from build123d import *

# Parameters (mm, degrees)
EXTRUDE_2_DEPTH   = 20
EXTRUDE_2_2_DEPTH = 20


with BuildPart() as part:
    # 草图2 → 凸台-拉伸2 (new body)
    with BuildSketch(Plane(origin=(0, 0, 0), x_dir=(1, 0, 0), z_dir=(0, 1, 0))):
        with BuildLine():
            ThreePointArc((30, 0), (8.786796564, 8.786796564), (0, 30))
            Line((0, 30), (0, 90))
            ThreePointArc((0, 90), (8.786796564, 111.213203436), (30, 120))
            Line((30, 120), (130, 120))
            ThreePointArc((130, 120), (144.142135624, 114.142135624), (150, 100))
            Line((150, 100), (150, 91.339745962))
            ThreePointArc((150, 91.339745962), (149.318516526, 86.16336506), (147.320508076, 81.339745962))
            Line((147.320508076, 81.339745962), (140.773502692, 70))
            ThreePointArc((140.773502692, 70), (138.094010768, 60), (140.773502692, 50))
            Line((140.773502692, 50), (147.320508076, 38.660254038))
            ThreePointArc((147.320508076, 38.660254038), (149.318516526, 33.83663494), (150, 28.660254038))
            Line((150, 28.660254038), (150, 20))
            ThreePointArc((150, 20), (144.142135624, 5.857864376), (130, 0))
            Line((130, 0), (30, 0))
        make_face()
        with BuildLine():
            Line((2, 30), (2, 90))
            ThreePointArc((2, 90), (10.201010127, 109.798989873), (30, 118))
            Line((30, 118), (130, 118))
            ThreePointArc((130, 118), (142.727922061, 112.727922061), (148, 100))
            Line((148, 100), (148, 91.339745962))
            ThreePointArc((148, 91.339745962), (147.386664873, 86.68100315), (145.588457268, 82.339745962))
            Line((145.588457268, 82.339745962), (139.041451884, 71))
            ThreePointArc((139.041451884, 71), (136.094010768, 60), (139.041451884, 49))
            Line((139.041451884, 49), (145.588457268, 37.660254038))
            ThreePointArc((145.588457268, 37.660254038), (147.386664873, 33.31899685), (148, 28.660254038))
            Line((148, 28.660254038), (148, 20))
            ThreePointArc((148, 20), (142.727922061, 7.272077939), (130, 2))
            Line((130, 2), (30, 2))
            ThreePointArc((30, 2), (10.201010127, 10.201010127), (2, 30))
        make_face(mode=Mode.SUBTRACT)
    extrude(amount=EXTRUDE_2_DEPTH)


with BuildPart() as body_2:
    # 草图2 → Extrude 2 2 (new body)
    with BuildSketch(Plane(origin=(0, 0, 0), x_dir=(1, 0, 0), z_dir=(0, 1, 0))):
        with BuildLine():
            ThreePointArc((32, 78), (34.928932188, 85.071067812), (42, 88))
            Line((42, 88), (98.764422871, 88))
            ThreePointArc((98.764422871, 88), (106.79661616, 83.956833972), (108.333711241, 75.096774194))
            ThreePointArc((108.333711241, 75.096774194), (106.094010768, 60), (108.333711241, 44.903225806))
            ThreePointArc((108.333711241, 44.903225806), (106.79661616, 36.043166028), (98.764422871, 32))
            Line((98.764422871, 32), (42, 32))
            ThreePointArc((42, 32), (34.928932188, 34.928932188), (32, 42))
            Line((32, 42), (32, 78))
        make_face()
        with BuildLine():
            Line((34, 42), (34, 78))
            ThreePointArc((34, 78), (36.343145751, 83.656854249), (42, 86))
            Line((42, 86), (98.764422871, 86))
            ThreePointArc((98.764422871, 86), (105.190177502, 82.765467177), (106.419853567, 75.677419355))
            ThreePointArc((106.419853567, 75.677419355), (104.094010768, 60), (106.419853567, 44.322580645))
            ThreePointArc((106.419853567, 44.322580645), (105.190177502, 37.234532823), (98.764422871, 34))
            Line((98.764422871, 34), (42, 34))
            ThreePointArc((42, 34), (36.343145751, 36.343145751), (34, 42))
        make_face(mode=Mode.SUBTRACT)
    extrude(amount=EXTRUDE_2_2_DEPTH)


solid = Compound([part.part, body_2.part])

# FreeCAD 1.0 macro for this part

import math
import FreeCAD as App
import Part
import Sketcher
Q = App.Units.Quantity

doc = App.newDocument("Part")
body = doc.addObject("PartDesign::Body", "Body")

sketch1 = body.newObject("Sketcher::SketchObject", "Sketch")
sketch1.AttachmentSupport = (doc.getObject("XZ_Plane"), [""])
sketch1.MapMode = "FlatFace"
sketch1.addGeometry(Part.ArcOfCircle(Part.Circle(App.Vector(30, -30, 0), App.Vector(0, 0, 1), 30), math.radians(90), math.radians(180)), False)
sketch1.addGeometry(Part.LineSegment(App.Vector(30, 0, 0), App.Vector(130, 0, 0)), False)
sketch1.addGeometry(Part.ArcOfCircle(Part.Circle(App.Vector(130, -20, 0), App.Vector(0, 0, 1), 20), math.radians(0), math.radians(90)), False)
sketch1.addGeometry(Part.LineSegment(App.Vector(150, -20, 0), App.Vector(150, -29, 0)), False)
sketch1.addGeometry(Part.ArcOfCircle(Part.Circle(App.Vector(130, -29, 0), App.Vector(0, 0, 1), 20), math.radians(-30), math.radians(0)), False)
sketch1.addGeometry(Part.LineSegment(App.Vector(147, -39, 0), App.Vector(141, -50, 0)), False)
sketch1.addGeometry(Part.ArcOfCircle(Part.Circle(App.Vector(158, -60, 0), App.Vector(0, 0, 1), 20), math.radians(150), math.radians(210)), False)
sketch1.addGeometry(Part.LineSegment(App.Vector(141, -70, 0), App.Vector(147, -81, 0)), False)
sketch1.addGeometry(Part.ArcOfCircle(Part.Circle(App.Vector(130, -91, 0), App.Vector(0, 0, 1), 20), math.radians(0), math.radians(30)), False)
sketch1.addGeometry(Part.LineSegment(App.Vector(150, -91, 0), App.Vector(150, -100, 0)), False)
sketch1.addGeometry(Part.ArcOfCircle(Part.Circle(App.Vector(130, -100, 0), App.Vector(0, 0, 1), 20), math.radians(-90), math.radians(0)), False)
sketch1.addGeometry(Part.LineSegment(App.Vector(130, -120, 0), App.Vector(30, -120, 0)), False)
sketch1.addGeometry(Part.ArcOfCircle(Part.Circle(App.Vector(30, -90, 0), App.Vector(0, 0, 1), 30), math.radians(180), math.radians(270)), False)
sketch1.addGeometry(Part.LineSegment(App.Vector(0, -90, 0), App.Vector(0, -30, 0)), False)
sketch1.addGeometry(Part.LineSegment(App.Vector(2, -30, 0), App.Vector(2, -90, 0)), False)
sketch1.addGeometry(Part.ArcOfCircle(Part.Circle(App.Vector(30, -90, 0), App.Vector(0, 0, 1), 28), math.radians(-180), math.radians(-90)), False)
sketch1.addGeometry(Part.LineSegment(App.Vector(30, -118, 0), App.Vector(130, -118, 0)), False)
sketch1.addGeometry(Part.ArcOfCircle(Part.Circle(App.Vector(130, -100, 0), App.Vector(0, 0, 1), 18), math.radians(-90), math.radians(0)), False)
sketch1.addGeometry(Part.LineSegment(App.Vector(148, -100, 0), App.Vector(148, -91, 0)), False)
sketch1.addGeometry(Part.ArcOfCircle(Part.Circle(App.Vector(130, -91, 0), App.Vector(0, 0, 1), 18), math.radians(0), math.radians(30)), False)
sketch1.addGeometry(Part.LineSegment(App.Vector(146, -82, 0), App.Vector(139, -71, 0)), False)
sketch1.addGeometry(Part.ArcOfCircle(Part.Circle(App.Vector(158, -60, 0), App.Vector(0, 0, 1), 22), math.radians(150), math.radians(210)), False)
sketch1.addGeometry(Part.LineSegment(App.Vector(139, -49, 0), App.Vector(146, -38, 0)), False)
sketch1.addGeometry(Part.ArcOfCircle(Part.Circle(App.Vector(130, -29, 0), App.Vector(0, 0, 1), 18), math.radians(-30), math.radians(0)), False)
sketch1.addGeometry(Part.LineSegment(App.Vector(148, -29, 0), App.Vector(148, -20, 0)), False)
sketch1.addGeometry(Part.ArcOfCircle(Part.Circle(App.Vector(130, -20, 0), App.Vector(0, 0, 1), 18), math.radians(0), math.radians(90)), False)
sketch1.addGeometry(Part.LineSegment(App.Vector(130, -2, 0), App.Vector(30, -2, 0)), False)
sketch1.addGeometry(Part.ArcOfCircle(Part.Circle(App.Vector(30, -30, 0), App.Vector(0, 0, 1), 28), math.radians(90), math.radians(180)), False)
sketch1.addConstraint(Sketcher.Constraint("Tangent", 0, 1, 1, 1))
sketch1.addConstraint(Sketcher.Constraint("Tangent", 1, 2, 2, 2))
sketch1.addConstraint(Sketcher.Constraint("Tangent", 2, 1, 3, 1))
sketch1.addConstraint(Sketcher.Constraint("Tangent", 3, 2, 4, 2))
sketch1.addConstraint(Sketcher.Constraint("Tangent", 4, 1, 5, 1))
sketch1.addConstraint(Sketcher.Constraint("Tangent", 5, 2, 6, 1))
sketch1.addConstraint(Sketcher.Constraint("Tangent", 6, 2, 7, 1))
sketch1.addConstraint(Sketcher.Constraint("Tangent", 7, 2, 8, 2))
sketch1.addConstraint(Sketcher.Constraint("Tangent", 8, 1, 9, 1))
sketch1.addConstraint(Sketcher.Constraint("Tangent", 9, 2, 10, 2))
sketch1.addConstraint(Sketcher.Constraint("Tangent", 10, 1, 11, 1))
sketch1.addConstraint(Sketcher.Constraint("Tangent", 11, 2, 12, 2))
sketch1.addConstraint(Sketcher.Constraint("Tangent", 12, 1, 13, 1))
sketch1.addConstraint(Sketcher.Constraint("Tangent", 13, 2, 0, 2))
sketch1.addConstraint(Sketcher.Constraint("Tangent", 14, 2, 15, 1))
sketch1.addConstraint(Sketcher.Constraint("Tangent", 15, 2, 16, 1))
sketch1.addConstraint(Sketcher.Constraint("Tangent", 16, 2, 17, 1))
sketch1.addConstraint(Sketcher.Constraint("Tangent", 17, 2, 18, 1))
sketch1.addConstraint(Sketcher.Constraint("Tangent", 18, 2, 19, 1))
sketch1.addConstraint(Sketcher.Constraint("Tangent", 19, 2, 20, 1))
sketch1.addConstraint(Sketcher.Constraint("Tangent", 20, 2, 21, 2))
sketch1.addConstraint(Sketcher.Constraint("Tangent", 21, 1, 22, 1))
sketch1.addConstraint(Sketcher.Constraint("Tangent", 22, 2, 23, 1))
sketch1.addConstraint(Sketcher.Constraint("Tangent", 23, 2, 24, 1))
sketch1.addConstraint(Sketcher.Constraint("Tangent", 24, 2, 25, 1))
sketch1.addConstraint(Sketcher.Constraint("Tangent", 25, 2, 26, 1))
sketch1.addConstraint(Sketcher.Constraint("Tangent", 26, 2, 27, 1))
sketch1.addConstraint(Sketcher.Constraint("Tangent", 27, 2, 14, 1))
sketch1.addConstraint(Sketcher.Constraint("Horizontal", 1))
sketch1.addConstraint(Sketcher.Constraint("Vertical", 3))
sketch1.addConstraint(Sketcher.Constraint("Vertical", 9))
sketch1.addConstraint(Sketcher.Constraint("Horizontal", 11))
sketch1.addConstraint(Sketcher.Constraint("Vertical", 13))
sketch1.addConstraint(Sketcher.Constraint("Vertical", 14))
sketch1.addConstraint(Sketcher.Constraint("Horizontal", 16))
sketch1.addConstraint(Sketcher.Constraint("Vertical", 18))
sketch1.addConstraint(Sketcher.Constraint("Vertical", 24))
sketch1.addConstraint(Sketcher.Constraint("Horizontal", 26))
sketch1.addConstraint(Sketcher.Constraint("Coincident", 15, 3, 12, 3))
sketch1.addConstraint(Sketcher.Constraint("Coincident", 17, 3, 10, 3))
sketch1.addConstraint(Sketcher.Constraint("Coincident", 19, 3, 8, 3))
sketch1.addConstraint(Sketcher.Constraint("Coincident", 21, 3, 6, 3))
sketch1.addConstraint(Sketcher.Constraint("Coincident", 23, 3, 4, 3))
sketch1.addConstraint(Sketcher.Constraint("Coincident", 25, 3, 2, 3))
sketch1.addConstraint(Sketcher.Constraint("Coincident", 27, 3, 0, 3))
sketch1.addConstraint(Sketcher.Constraint("Equal", 2, 4))
sketch1.addConstraint(Sketcher.Constraint("Equal", 4, 6))
sketch1.addConstraint(Sketcher.Constraint("Equal", 6, 8))
sketch1.addConstraint(Sketcher.Constraint("Equal", 8, 10))
sketch1.addConstraint(Sketcher.Constraint("Equal", 0, 12))
sketch1.addConstraint(Sketcher.Constraint("PointOnObject", 0, 1, -1))
sketch1.addConstraint(Sketcher.Constraint("PointOnObject", 12, 1, -2))
sketch1.addConstraint(Sketcher.Constraint("Parallel", 7, 20))
sketch1.addConstraint(Sketcher.Constraint("Vertical", 4, 3, 8, 3))
sketch1.addConstraint(Sketcher.Constraint("Vertical", 5, 2, 6, 2))
sketch1.addConstraint(Sketcher.Constraint("Equal", 3, 9))
sketch1.addConstraint(Sketcher.Constraint("Radius", 0, Q("30 mm")))
sketch1.addConstraint(Sketcher.Constraint("Radius", 2, Q("20 mm")))
sketch1.addConstraint(Sketcher.Constraint("Radius", 15, Q("28 mm")))
sketch1.addConstraint(Sketcher.Constraint("DistanceX", 1, 1, 1, 2, Q("100 mm")))
sketch1.addConstraint(Sketcher.Constraint("DistanceY", 13, 1, 13, 2, Q("60 mm")))
sketch1.addConstraint(Sketcher.Constraint("Angle", 5, Q("-120 deg")))
sketch1.addConstraint(Sketcher.Constraint("Distance", 5, Q("13.094011 mm")))
pad1 = body.newObject("PartDesign::Pad", "Pad")
pad1.Profile = sketch1
pad1.Length = 20
pad1.Reversed = True
body2 = doc.addObject("PartDesign::Body", "Body001")

sketch2 = body2.newObject("Sketcher::SketchObject", "Sketch001")
sketch2.AttachmentSupport = (doc.getObject("XZ_Plane001"), [""])
sketch2.MapMode = "FlatFace"
sketch2.addGeometry(Part.ArcOfCircle(Part.Circle(App.Vector(42, -78, 0), App.Vector(0, 0, 1), 10), math.radians(180), math.radians(270)), False)
sketch2.addGeometry(Part.LineSegment(App.Vector(32, -78, 0), App.Vector(32, -42, 0)), False)
sketch2.addGeometry(Part.ArcOfCircle(Part.Circle(App.Vector(42, -42, 0), App.Vector(0, 0, 1), 10), math.radians(90), math.radians(180)), False)
sketch2.addGeometry(Part.LineSegment(App.Vector(42, -32, 0), App.Vector(99, -32, 0)), False)
sketch2.addGeometry(Part.ArcOfCircle(Part.Circle(App.Vector(99, -42, 0), App.Vector(0, 0, 1), 10), math.radians(-17), math.radians(90)), False)
sketch2.addGeometry(Part.ArcOfCircle(Part.Circle(App.Vector(158, -60, 0), App.Vector(0, 0, 1), 52), math.radians(163), math.radians(197)), False)
sketch2.addGeometry(Part.ArcOfCircle(Part.Circle(App.Vector(99, -78, 0), App.Vector(0, 0, 1), 10), math.radians(-90), math.radians(17)), False)
sketch2.addGeometry(Part.LineSegment(App.Vector(99, -88, 0), App.Vector(42, -88, 0)), False)
sketch2.addGeometry(Part.LineSegment(App.Vector(34, -42, 0), App.Vector(34, -78, 0)), False)
sketch2.addGeometry(Part.ArcOfCircle(Part.Circle(App.Vector(42, -78, 0), App.Vector(0, 0, 1), 8), math.radians(-180), math.radians(-90)), False)
sketch2.addGeometry(Part.LineSegment(App.Vector(42, -86, 0), App.Vector(99, -86, 0)), False)
sketch2.addGeometry(Part.ArcOfCircle(Part.Circle(App.Vector(99, -78, 0), App.Vector(0, 0, 1), 8), math.radians(-90), math.radians(17)), False)
sketch2.addGeometry(Part.ArcOfCircle(Part.Circle(App.Vector(158, -60, 0), App.Vector(0, 0, 1), 54), math.radians(163), math.radians(197)), False)
sketch2.addGeometry(Part.ArcOfCircle(Part.Circle(App.Vector(99, -42, 0), App.Vector(0, 0, 1), 8), math.radians(-17), math.radians(90)), False)
sketch2.addGeometry(Part.LineSegment(App.Vector(99, -34, 0), App.Vector(42, -34, 0)), False)
sketch2.addGeometry(Part.ArcOfCircle(Part.Circle(App.Vector(42, -42, 0), App.Vector(0, 0, 1), 8), math.radians(90), math.radians(180)), False)
sketch2.addConstraint(Sketcher.Constraint("Tangent", 0, 1, 1, 1))
sketch2.addConstraint(Sketcher.Constraint("Tangent", 1, 2, 2, 2))
sketch2.addConstraint(Sketcher.Constraint("Tangent", 2, 1, 3, 1))
sketch2.addConstraint(Sketcher.Constraint("Tangent", 3, 2, 4, 2))
sketch2.addConstraint(Sketcher.Constraint("Tangent", 4, 1, 5, 1))
sketch2.addConstraint(Sketcher.Constraint("Tangent", 5, 2, 6, 2))
sketch2.addConstraint(Sketcher.Constraint("Tangent", 6, 1, 7, 1))
sketch2.addConstraint(Sketcher.Constraint("Tangent", 7, 2, 0, 2))
sketch2.addConstraint(Sketcher.Constraint("Tangent", 8, 2, 9, 1))
sketch2.addConstraint(Sketcher.Constraint("Tangent", 9, 2, 10, 1))
sketch2.addConstraint(Sketcher.Constraint("Tangent", 10, 2, 11, 1))
sketch2.addConstraint(Sketcher.Constraint("Tangent", 11, 2, 12, 2))
sketch2.addConstraint(Sketcher.Constraint("Tangent", 12, 1, 13, 1))
sketch2.addConstraint(Sketcher.Constraint("Tangent", 13, 2, 14, 1))
sketch2.addConstraint(Sketcher.Constraint("Tangent", 14, 2, 15, 1))
sketch2.addConstraint(Sketcher.Constraint("Tangent", 15, 2, 8, 1))
sketch2.addConstraint(Sketcher.Constraint("Vertical", 1))
sketch2.addConstraint(Sketcher.Constraint("Horizontal", 3))
sketch2.addConstraint(Sketcher.Constraint("Horizontal", 7))
sketch2.addConstraint(Sketcher.Constraint("Vertical", 8))
sketch2.addConstraint(Sketcher.Constraint("Horizontal", 10))
sketch2.addConstraint(Sketcher.Constraint("Horizontal", 14))
sketch2.addConstraint(Sketcher.Constraint("Coincident", 9, 3, 0, 3))
sketch2.addConstraint(Sketcher.Constraint("Coincident", 11, 3, 6, 3))
sketch2.addConstraint(Sketcher.Constraint("Coincident", 12, 3, 5, 3))
sketch2.addConstraint(Sketcher.Constraint("Coincident", 13, 3, 4, 3))
sketch2.addConstraint(Sketcher.Constraint("Equal", 0, 2))
sketch2.addConstraint(Sketcher.Constraint("Equal", 2, 4))
sketch2.addConstraint(Sketcher.Constraint("Equal", 4, 6))
sketch2.addConstraint(Sketcher.Constraint("Equal", 13, 15))
sketch2.addConstraint(Sketcher.Constraint("Vertical", 4, 3, 6, 3))
sketch2.addConstraint(Sketcher.Constraint("Radius", 0, Q("10 mm")))
sketch2.addConstraint(Sketcher.Constraint("Radius", 5, Q("52 mm")))
sketch2.addConstraint(Sketcher.Constraint("Radius", 9, Q("8 mm")))
sketch2.addConstraint(Sketcher.Constraint("DistanceY", 1, 1, 1, 2, Q("36 mm")))
sketch2.addConstraint(Sketcher.Constraint("DistanceX", -1, 1, 0, 3, Q("42 mm")))
sketch2.addConstraint(Sketcher.Constraint("DistanceY", 0, 3, -1, 1, Q("78 mm")))
sketch2.addConstraint(Sketcher.Constraint("DistanceX", 3, 1, 3, 2, Q("56.764423 mm")))
pad2 = body2.newObject("PartDesign::Pad", "Pad001")
pad2.Profile = sketch2
pad2.Length = 20
pad2.Reversed = True

doc.recompute()
